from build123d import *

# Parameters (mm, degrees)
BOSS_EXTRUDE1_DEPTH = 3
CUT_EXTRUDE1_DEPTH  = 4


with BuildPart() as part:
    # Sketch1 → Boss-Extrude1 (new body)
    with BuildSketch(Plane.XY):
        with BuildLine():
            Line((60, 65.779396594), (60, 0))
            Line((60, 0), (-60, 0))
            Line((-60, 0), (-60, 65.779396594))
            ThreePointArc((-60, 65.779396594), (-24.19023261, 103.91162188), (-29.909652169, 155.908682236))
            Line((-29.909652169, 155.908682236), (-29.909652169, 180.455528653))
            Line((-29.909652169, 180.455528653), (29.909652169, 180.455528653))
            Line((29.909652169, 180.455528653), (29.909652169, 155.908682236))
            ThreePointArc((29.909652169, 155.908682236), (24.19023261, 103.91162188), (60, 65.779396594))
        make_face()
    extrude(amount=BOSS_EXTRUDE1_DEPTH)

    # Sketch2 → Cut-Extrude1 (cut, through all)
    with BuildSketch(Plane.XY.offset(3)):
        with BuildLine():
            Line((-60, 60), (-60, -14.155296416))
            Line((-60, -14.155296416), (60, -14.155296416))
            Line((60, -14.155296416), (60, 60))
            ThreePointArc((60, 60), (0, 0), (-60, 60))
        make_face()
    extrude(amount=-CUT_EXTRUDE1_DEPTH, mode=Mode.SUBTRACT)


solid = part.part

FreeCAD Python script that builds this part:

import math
import FreeCAD as App
import Part
import Sketcher
from FreeCAD import Vector

doc = App.newDocument("Part")
body = doc.addObject("PartDesign::Body", "Body")

sketch1 = body.newObject("Sketcher::SketchObject", "Sketch")
sketch1.AttachmentSupport = (doc.getObject("XY_Plane"), [""])
sketch1.MapMode = "FlatFace"
sketch1.addGeometry([
    Part.LineSegment(Vector(60, 0, 0), Vector(60, 65.779397, 0)),
    Part.ArcOfCircle(Part.Circle(Vector(83.473608, 123.703828, 0), Vector(0, 0, 1), 62.5), math.radians(148.983983), math.radians(247.939976)),
    Part.LineSegment(Vector(29.909652, 155.908682, 0), Vector(29.909652, 180.455529, 0)),
    Part.LineSegment(Vector(29.909652, 180.455529, 0), Vector(-29.909652, 180.455529, 0)),
    Part.LineSegment(Vector(-29.909652, 180.455529, 0), Vector(-29.909652, 155.908682, 0)),
    Part.ArcOfCircle(Part.Circle(Vector(-83.473608, 123.703828, 0), Vector(0, 0, 1), 62.5), math.radians(-67.939976), math.radians(31.016017)),
    Part.LineSegment(Vector(-60, 65.779397, 0), Vector(-60, 0, 0)),
    Part.LineSegment(Vector(-60, 0, 0), Vector(60, 0, 0)),
], False)
sketch1.addConstraint([
    Sketcher.Constraint("Coincident", 0, 2, 1, 2),
    Sketcher.Constraint("Coincident", 1, 1, 2, 1),
    Sketcher.Constraint("Coincident", 2, 2, 3, 1),
    Sketcher.Constraint("Coincident", 3, 2, 4, 1),
    Sketcher.Constraint("Coincident", 4, 2, 5, 2),
    Sketcher.Constraint("Coincident", 5, 1, 6, 1),
    Sketcher.Constraint("Coincident", 6, 2, 7, 1),
    Sketcher.Constraint("Coincident", 7, 2, 0, 1),
    Sketcher.Constraint("Vertical", 0),
    Sketcher.Constraint("Vertical", 2),
    Sketcher.Constraint("Horizontal", 3),
    Sketcher.Constraint("Vertical", 4),
    Sketcher.Constraint("Vertical", 6),
    Sketcher.Constraint("Horizontal", 7),
    Sketcher.Constraint("Equal", 1, 5),
    Sketcher.Constraint("Symmetric", 6, 2, 7, 2, -1, 1),
    Sketcher.Constraint("Symmetric", 1, 3, 5, 3, -2),
    Sketcher.Constraint("Horizontal", 1, 1, 4, 2),
    Sketcher.Constraint("Radius", 1, 62.5),
    Sketcher.Constraint("DistanceX", 7, 1, 7, 2, 120.0),
    Sketcher.Constraint("DistanceY", 1, 3, 2, 2, 56.751701),
    Sketcher.Constraint("DistanceX", 3, 2, 3, 1, 59.819304),
    Sketcher.Constraint("DistanceY", 0, 1, 0, 2, 65.779397),
    Sketcher.Constraint("DistanceY", 2, 1, 2, 2, 24.546846),
])
pad1 = body.newObject("PartDesign::Pad", "Pad")
pad1.Profile = sketch1
pad1.Length = 3

sketch2 = body.newObject("Sketcher::SketchObject", "Sketch001")
sketch2.AttachmentSupport = (doc.getObject("XY_Plane"), [""])
sketch2.MapMode = "FlatFace"
sketch2.AttachmentOffset = App.Placement(Vector(0, 0, 3), App.Rotation())
sketch2.addGeometry([
    Part.LineSegment(Vector(-60, 60, 0), Vector(-60, -14.155296, 0)),
    Part.LineSegment(Vector(-60, -14.155296, 0), Vector(60, -14.155296, 0)),
    Part.LineSegment(Vector(60, -14.155296, 0), Vector(60, 60, 0)),
    Part.ArcOfCircle(Part.Circle(Vector(0, 60, 0), Vector(0, 0, 1), 60), math.radians(180), math.radians(360)),
], False)
sketch2.addConstraint([
    Sketcher.Constraint("Coincident", 0, 2, 1, 1),
    Sketcher.Constraint("Coincident", 1, 2, 2, 1),
    Sketcher.Constraint("Tangent", 2, 2, 3, 2),
    Sketcher.Constraint("Tangent", 3, 1, 0, 1),
    Sketcher.Constraint("Vertical", 0),
    Sketcher.Constraint("Horizontal", 1),
    Sketcher.Constraint("Vertical", 2),
    Sketcher.Constraint("PointOnObject", 3, 3, -2),
    Sketcher.Constraint("Radius", 3, 60.0),
    Sketcher.Constraint("DistanceY", -1, 1, 3, 3, 60.0),
    Sketcher.Constraint("DistanceY", 0, 2, 0, 1, 74.155296),
])
pocket1 = body.newObject("PartDesign::Pocket", "Pocket")
pocket1.Profile = sketch2
pocket1.Type = "ThroughAll"

doc.recompute()
